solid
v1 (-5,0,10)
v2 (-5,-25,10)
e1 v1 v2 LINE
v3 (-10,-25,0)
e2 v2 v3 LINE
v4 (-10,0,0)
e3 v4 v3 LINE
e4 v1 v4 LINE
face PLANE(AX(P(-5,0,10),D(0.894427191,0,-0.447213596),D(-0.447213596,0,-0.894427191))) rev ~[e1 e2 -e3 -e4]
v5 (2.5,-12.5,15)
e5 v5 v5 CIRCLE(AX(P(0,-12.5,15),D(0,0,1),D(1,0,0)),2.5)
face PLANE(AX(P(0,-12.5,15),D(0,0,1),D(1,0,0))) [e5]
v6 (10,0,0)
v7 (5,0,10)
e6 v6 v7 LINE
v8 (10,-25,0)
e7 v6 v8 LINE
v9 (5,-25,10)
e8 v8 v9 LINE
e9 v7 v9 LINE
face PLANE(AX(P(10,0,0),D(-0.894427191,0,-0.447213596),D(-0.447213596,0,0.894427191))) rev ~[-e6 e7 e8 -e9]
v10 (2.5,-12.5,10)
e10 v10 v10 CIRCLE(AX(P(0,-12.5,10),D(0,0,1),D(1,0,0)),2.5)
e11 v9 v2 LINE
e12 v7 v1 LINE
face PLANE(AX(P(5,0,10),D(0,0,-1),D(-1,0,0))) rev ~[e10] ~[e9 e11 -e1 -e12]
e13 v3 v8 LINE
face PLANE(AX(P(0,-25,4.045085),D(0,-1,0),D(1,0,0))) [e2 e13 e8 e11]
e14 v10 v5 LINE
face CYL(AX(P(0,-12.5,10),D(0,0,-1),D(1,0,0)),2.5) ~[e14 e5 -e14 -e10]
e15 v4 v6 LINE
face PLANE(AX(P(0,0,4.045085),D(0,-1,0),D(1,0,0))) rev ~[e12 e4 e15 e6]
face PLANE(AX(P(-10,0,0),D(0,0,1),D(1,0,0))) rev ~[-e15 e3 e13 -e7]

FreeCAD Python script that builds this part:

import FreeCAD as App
import Part
import Sketcher
from FreeCAD import Vector

doc = App.newDocument("Part")
body = doc.addObject("PartDesign::Body", "Body")

# Sketch on XZ plane
sketch1 = body.newObject("Sketcher::SketchObject", "Sketch")
sketch1.AttachmentSupport = (doc.getObject("XZ_Plane"), [""])
sketch1.MapMode = "FlatFace"
sketch1.addGeometry([
    Part.LineSegment(Vector(-10, 0, 0), Vector(10, 0, 0)),
    Part.LineSegment(Vector(10, 0, 0), Vector(5, 10, 0)),
    Part.LineSegment(Vector(5, 10, 0), Vector(-5, 10, 0)),
    Part.LineSegment(Vector(-5, 10, 0), Vector(-10, 0, 0)),
], False)
sketch1.addConstraint([
    Sketcher.Constraint("Coincident", 0, 2, 1, 1),
    Sketcher.Constraint("Coincident", 1, 2, 2, 1),
    Sketcher.Constraint("Coincident", 2, 2, 3, 1),
    Sketcher.Constraint("Coincident", 3, 2, 0, 1),
    Sketcher.Constraint("Horizontal", 0),
    Sketcher.Constraint("Horizontal", 2),
    Sketcher.Constraint("Symmetric", 0, 2, 3, 2, -1, 1),
    Sketcher.Constraint("Equal", 1, 3),
    Sketcher.Constraint("DistanceX", 0, 1, 0, 2, 20.0),
    Sketcher.Constraint("DistanceX", 2, 2, 2, 1, 10.0),
    Sketcher.Constraint("DistanceY", -1, 1, 1, 2, 10.0),
])
pad1 = body.newObject("PartDesign::Pad", "Pad")
pad1.Profile = sketch1
pad1.Length = 25

# Sketch on XY plane
sketch2 = body.newObject("Sketcher::SketchObject", "Sketch001")
sketch2.AttachmentSupport = (doc.getObject("XY_Plane"), [""])
sketch2.MapMode = "FlatFace"
sketch2.AttachmentOffset = App.Placement(Vector(0, 0, 10), App.Rotation())
sketch2.addGeometry(Part.Circle(Vector(0, -12.5, 0), Vector(0, 0, 1), 2.5), False)
sketch2.addConstraint([
    Sketcher.Constraint("PointOnObject", 0, 3, -2),
    Sketcher.Constraint("Diameter", 0, 5.0),
    Sketcher.Constraint("DistanceY", 0, 3, -1, 1, 12.5),
])
pad2 = body.newObject("PartDesign::Pad", "Pad001")
pad2.Profile = sketch2
pad2.Length = 5

doc.recompute()
